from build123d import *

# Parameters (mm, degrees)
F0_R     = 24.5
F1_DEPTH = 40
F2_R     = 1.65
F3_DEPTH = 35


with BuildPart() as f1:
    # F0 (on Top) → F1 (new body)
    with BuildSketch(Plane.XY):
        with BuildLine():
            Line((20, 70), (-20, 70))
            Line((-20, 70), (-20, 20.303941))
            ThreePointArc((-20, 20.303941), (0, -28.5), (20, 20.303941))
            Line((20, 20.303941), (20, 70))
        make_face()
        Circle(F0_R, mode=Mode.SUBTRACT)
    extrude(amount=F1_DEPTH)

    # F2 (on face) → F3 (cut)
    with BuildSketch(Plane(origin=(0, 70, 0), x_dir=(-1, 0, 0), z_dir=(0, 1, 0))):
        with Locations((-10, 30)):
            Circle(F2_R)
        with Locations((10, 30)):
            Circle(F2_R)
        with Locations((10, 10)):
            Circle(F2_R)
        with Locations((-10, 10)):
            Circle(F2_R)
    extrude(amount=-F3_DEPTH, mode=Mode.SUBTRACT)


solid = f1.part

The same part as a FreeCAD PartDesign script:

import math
import FreeCAD as App
import Part
import Sketcher
Q = App.Units.Quantity

doc = App.newDocument("Part")
params = doc.addObject("Spreadsheet::Sheet", "Params")
for row, (alias, value) in enumerate([
    ("sketch1_diameter", "49 mm"),
    ("sketch1_radius", "28.5 mm"),
    ("sketch1_width", "40 mm"),
    ("pad1_length", "40 mm"),
    ("sketch2_diameter", "3.3 mm"),
    ("pocket1_length", "35 mm"),
], start=1):
    params.set(f"A{row}", alias)
    params.set(f"B{row}", "=" + value)
    params.setAlias(f"B{row}", alias)

body = doc.addObject("PartDesign::Body", "Body")

# Sketch on XY plane
sketch1 = body.newObject("Sketcher::SketchObject", "Sketch")
sketch1.AttachmentSupport = (doc.getObject("XY_Plane"), [""])
sketch1.MapMode = "FlatFace"
sketch1.addGeometry([
    Part.LineSegment(App.Vector(20, 70, 0), App.Vector(-20, 70, 0)),  # 0
    Part.LineSegment(App.Vector(-20, 70, 0), App.Vector(-20, 20, 0)),  # 1
    Part.ArcOfCircle(Part.Circle(App.Vector(0, 0, 0), App.Vector(0, 0, 1), 29), math.radians(135), math.radians(405)),  # 2
    Part.LineSegment(App.Vector(20, 20, 0), App.Vector(20, 70, 0)),  # 3
    Part.Circle(App.Vector(0, 0, 0), App.Vector(0, 0, 1), 24),  # 4
], False)
sketch1.addConstraint([
    Sketcher.Constraint("Coincident", 0, 2, 1, 1),
    Sketcher.Constraint("Coincident", 1, 2, 2, 1),
    Sketcher.Constraint("Coincident", 2, 2, 3, 1),
    Sketcher.Constraint("Coincident", 3, 2, 0, 1),
    Sketcher.Constraint("Horizontal", 0),
    Sketcher.Constraint("Vertical", 1),
    Sketcher.Constraint("Vertical", 3),
    Sketcher.Constraint("Coincident", 2, 3, -1, 1),
    Sketcher.Constraint("Coincident", 4, 3, -1, 1),
    Sketcher.Constraint("Horizontal", 1, 2, 2, 2),
    Sketcher.Constraint("Diameter", 4, Q("49 mm")),
    Sketcher.Constraint("Radius", 2, Q("28.5 mm")),
    Sketcher.Constraint("DistanceX", 0, 2, 0, 1, Q("40 mm")),
    Sketcher.Constraint("DistanceY", -1, 1, 0, 2, Q("70 mm")),
])
sketch1.setExpression("Constraints[10]", "Params.sketch1_diameter")
sketch1.setExpression("Constraints[11]", "Params.sketch1_radius")
sketch1.setExpression("Constraints[12]", "Params.sketch1_width")
pad1 = body.newObject("PartDesign::Pad", "Pad")
pad1.Profile = sketch1
pad1.setExpression("Length", "Params.pad1_length")

# Sketch on XZ plane
sketch2 = body.newObject("Sketcher::SketchObject", "Sketch001")
sketch2.AttachmentSupport = (doc.getObject("XZ_Plane"), [""])
sketch2.MapMode = "FlatFace"
sketch2.AttachmentOffset = App.Placement(App.Vector(0, 0, -70), App.Rotation())
sketch2.addGeometry([
    Part.Circle(App.Vector(10, 30, 0), App.Vector(0, 0, 1), 1.6),
    Part.Circle(App.Vector(-10, 30, 0), App.Vector(0, 0, 1), 1.6),
    Part.Circle(App.Vector(-10, 10, 0), App.Vector(0, 0, 1), 1.6),
    Part.Circle(App.Vector(10, 10, 0), App.Vector(0, 0, 1), 1.6),
], False)
sketch2.addConstraint([
    Sketcher.Constraint("Equal", 0, 1),
    Sketcher.Constraint("Equal", 1, 2),
    Sketcher.Constraint("Equal", 2, 3),
    Sketcher.Constraint("Symmetric", 0, 3, 1, 3, -2),
    Sketcher.Constraint("Symmetric", 2, 3, 3, 3, -2),
    Sketcher.Constraint("Vertical", 1, 3, 2, 3),
    Sketcher.Constraint("Diameter", 0, Q("3.3 mm")),
    Sketcher.Constraint("DistanceX", -1, 1, 0, 3, Q("10 mm")),
    Sketcher.Constraint("DistanceY", -1, 1, 0, 3, Q("30 mm")),
    Sketcher.Constraint("DistanceY", -1, 1, 2, 3, Q("10 mm")),
])
sketch2.setExpression("Constraints[6]", "Params.sketch2_diameter")
pocket1 = body.newObject("PartDesign::Pocket", "Pocket")
pocket1.Profile = sketch2
pocket1.setExpression("Length", "Params.pocket1_length")
pocket1.Reversed = True

doc.recompute()
